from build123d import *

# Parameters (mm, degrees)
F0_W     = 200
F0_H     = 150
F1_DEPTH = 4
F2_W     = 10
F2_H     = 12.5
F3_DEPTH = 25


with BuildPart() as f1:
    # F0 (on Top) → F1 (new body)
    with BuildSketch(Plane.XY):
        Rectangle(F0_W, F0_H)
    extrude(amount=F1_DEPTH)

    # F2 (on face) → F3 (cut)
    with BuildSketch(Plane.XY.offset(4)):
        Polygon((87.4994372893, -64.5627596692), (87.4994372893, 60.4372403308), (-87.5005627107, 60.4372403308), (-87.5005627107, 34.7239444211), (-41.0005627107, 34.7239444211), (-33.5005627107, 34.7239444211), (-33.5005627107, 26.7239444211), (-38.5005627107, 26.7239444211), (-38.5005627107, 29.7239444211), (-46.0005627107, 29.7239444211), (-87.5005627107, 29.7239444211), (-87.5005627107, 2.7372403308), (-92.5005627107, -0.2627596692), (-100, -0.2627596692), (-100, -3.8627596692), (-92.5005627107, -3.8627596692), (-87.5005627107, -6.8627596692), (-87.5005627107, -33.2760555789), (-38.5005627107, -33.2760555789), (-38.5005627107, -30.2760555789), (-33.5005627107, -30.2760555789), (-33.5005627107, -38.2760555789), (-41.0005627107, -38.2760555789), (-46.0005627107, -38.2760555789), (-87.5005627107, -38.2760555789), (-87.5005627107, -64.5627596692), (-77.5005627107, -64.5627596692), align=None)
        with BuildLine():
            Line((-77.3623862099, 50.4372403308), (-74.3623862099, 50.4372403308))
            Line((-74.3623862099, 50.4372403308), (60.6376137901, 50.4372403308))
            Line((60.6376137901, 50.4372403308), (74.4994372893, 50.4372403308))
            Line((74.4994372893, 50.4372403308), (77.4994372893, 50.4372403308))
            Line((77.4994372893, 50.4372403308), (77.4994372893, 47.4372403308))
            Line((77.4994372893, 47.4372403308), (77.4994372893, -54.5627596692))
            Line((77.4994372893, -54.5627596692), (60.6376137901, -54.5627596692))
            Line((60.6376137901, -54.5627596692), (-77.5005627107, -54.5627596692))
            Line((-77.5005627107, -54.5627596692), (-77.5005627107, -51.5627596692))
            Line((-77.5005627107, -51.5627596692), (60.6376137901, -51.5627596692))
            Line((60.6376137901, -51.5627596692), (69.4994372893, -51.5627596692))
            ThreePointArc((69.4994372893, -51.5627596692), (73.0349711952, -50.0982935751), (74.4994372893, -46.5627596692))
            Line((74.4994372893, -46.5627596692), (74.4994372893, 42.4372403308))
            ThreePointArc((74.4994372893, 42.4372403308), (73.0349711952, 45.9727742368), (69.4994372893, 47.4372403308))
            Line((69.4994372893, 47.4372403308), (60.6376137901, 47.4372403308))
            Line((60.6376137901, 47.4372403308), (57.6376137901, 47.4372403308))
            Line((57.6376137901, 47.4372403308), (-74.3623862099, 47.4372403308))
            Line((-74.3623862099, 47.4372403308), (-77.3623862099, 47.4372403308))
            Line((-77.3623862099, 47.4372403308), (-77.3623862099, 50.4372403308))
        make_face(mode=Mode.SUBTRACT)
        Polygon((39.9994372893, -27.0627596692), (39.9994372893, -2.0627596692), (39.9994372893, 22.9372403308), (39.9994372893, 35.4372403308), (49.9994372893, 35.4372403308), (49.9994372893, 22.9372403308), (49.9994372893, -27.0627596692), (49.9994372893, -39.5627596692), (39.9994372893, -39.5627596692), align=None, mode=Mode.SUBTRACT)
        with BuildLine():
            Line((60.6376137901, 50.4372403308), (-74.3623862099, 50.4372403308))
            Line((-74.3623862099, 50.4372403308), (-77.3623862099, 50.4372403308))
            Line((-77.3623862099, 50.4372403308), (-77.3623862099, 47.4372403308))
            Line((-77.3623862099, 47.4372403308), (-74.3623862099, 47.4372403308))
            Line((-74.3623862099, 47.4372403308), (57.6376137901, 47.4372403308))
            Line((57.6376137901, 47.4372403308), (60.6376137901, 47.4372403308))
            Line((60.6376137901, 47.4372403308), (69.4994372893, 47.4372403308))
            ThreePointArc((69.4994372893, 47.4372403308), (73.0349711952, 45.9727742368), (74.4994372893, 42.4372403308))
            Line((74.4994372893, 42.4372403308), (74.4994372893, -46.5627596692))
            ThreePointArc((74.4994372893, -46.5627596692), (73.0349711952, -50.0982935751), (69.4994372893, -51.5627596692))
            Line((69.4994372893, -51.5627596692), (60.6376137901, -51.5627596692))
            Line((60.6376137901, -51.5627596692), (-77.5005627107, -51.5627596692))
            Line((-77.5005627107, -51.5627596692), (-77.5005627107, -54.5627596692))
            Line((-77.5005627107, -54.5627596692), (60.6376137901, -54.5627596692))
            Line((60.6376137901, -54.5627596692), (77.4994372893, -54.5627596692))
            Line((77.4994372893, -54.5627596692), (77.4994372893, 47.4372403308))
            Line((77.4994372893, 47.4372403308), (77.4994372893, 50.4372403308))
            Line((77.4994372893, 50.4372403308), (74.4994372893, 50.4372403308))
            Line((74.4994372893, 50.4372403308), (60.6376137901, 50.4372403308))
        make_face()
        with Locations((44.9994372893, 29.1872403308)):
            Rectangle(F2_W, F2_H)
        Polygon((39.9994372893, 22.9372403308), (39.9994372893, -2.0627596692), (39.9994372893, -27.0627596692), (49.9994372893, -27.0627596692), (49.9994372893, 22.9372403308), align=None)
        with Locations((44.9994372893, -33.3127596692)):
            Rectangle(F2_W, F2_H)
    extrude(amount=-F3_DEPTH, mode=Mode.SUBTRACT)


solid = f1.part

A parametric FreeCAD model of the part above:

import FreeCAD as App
import Part
import Sketcher
from FreeCAD import Vector


def add_polygon(sketch, points):
    """Adds a closed chain of lines whose ends are joined by coincident constraints."""
    first, n = sketch.GeometryCount, len(points)
    for a, b in zip(points, points[1:] + points[:1]):
        sketch.addGeometry(Part.LineSegment(App.Vector(*a, 0), App.Vector(*b, 0)), False)
    for i in range(n):
        sketch.addConstraint(Sketcher.Constraint("Coincident", first + i, 2, first + (i + 1) % n, 1))

doc = App.newDocument("Part")
body = doc.addObject("PartDesign::Body", "Body")

# Sketch on XY plane
sketch1 = body.newObject("Sketcher::SketchObject", "Sketch")
sketch1.AttachmentSupport = (doc.getObject("XY_Plane"), [""])
sketch1.MapMode = "FlatFace"
add_polygon(sketch1, [(-100, 75), (-100, -75), (100, -75), (100, 75)])  # lines 0-3
sketch1.addConstraint([
    Sketcher.Constraint("Vertical", 0),
    Sketcher.Constraint("Horizontal", 1),
    Sketcher.Constraint("Vertical", 2),
    Sketcher.Constraint("Horizontal", 3),
    Sketcher.Constraint("Symmetric", 0, 2, 2, 2, -1, 1),
    Sketcher.Constraint("DistanceX", 1, 1, 1, 2, 200.0),
    Sketcher.Constraint("DistanceY", 0, 2, 0, 1, 150.0),
])
pad1 = body.newObject("PartDesign::Pad", "Pad")
pad1.Profile = sketch1
pad1.Length = 4

# Sketch on XY plane
sketch2 = body.newObject("Sketcher::SketchObject", "Sketch001")
sketch2.AttachmentSupport = (doc.getObject("XY_Plane"), [""])
sketch2.MapMode = "FlatFace"
sketch2.AttachmentOffset = App.Placement(Vector(0, 0, 4), App.Rotation())
add_polygon(sketch2, [(87.499437, -64.56276), (87.499437, 60.43724), (-87.500563, 60.43724), (-87.500563, 34.723944), (-33.500563, 34.723944), (-33.500563, 26.723944), (-38.500563, 26.723944), (-38.500563, 29.723944), (-87.500563, 29.723944), (-87.500563, 2.73724), (-92.500563, -0.26276), (-100, -0.26276), (-100, -3.86276), (-92.500563, -3.86276), (-87.500563, -6.86276), (-87.500563, -33.276056), (-38.500563, -33.276056), (-38.500563, -30.276056), (-33.500563, -30.276056), (-33.500563, -38.276056), (-87.500563, -38.276056), (-87.500563, -64.56276)])  # lines 0-21
sketch2.addConstraint([
    Sketcher.Constraint("Vertical", 0),
    Sketcher.Constraint("Horizontal", 1),
    Sketcher.Constraint("Vertical", 2),
    Sketcher.Constraint("Horizontal", 3),
    Sketcher.Constraint("Vertical", 4),
    Sketcher.Constraint("Horizontal", 5),
    Sketcher.Constraint("Vertical", 6),
    Sketcher.Constraint("Horizontal", 7),
    Sketcher.Constraint("Vertical", 8),
    Sketcher.Constraint("Horizontal", 10),
    Sketcher.Constraint("Vertical", 11),
    Sketcher.Constraint("Horizontal", 12),
    Sketcher.Constraint("Vertical", 14),
    Sketcher.Constraint("Horizontal", 15),
    Sketcher.Constraint("Vertical", 16),
    Sketcher.Constraint("Horizontal", 17),
    Sketcher.Constraint("Vertical", 18),
    Sketcher.Constraint("Horizontal", 19),
    Sketcher.Constraint("Vertical", 20),
    Sketcher.Constraint("Horizontal", 21),
    Sketcher.Constraint("Vertical", 2, 2, 7, 2),
    Sketcher.Constraint("Vertical", 9, 2, 12, 2),
    Sketcher.Constraint("Vertical", 8, 2, 13, 2),
    Sketcher.Constraint("Vertical", 6, 2, 15, 2),
    Sketcher.Constraint("Vertical", 4, 2, 17, 2),
    Sketcher.Constraint("Vertical", 14, 2, 19, 2),
    Sketcher.Constraint("Equal", 6, 16),
    Sketcher.Constraint("Equal", 4, 18),
    Sketcher.Constraint("Equal", 9, 13),
    Sketcher.Constraint("DistanceX", 1, 2, 1, 1, 175.0),
    Sketcher.Constraint("DistanceX", 3, 1, 3, 2, 54.0),
    Sketcher.Constraint("DistanceX", 5, 2, 5, 1, 5.0),
    Sketcher.Constraint("DistanceY", 0, 1, 0, 2, 125.0),
    Sketcher.Constraint("DistanceY", 4, 2, 4, 1, 8.0),
    Sketcher.Constraint("DistanceY", 6, 1, 6, 2, 3.0),
    Sketcher.Constraint("DistanceY", 11, 2, 11, 1, 3.6),
    Sketcher.Constraint("DistanceX", 10, 2, -1, 1, 100.0),
    Sketcher.Constraint("DistanceX", 9, 2, 8, 2, 5.0),
    Sketcher.Constraint("DistanceY", 9, 2, 8, 2, 3.0),
    Sketcher.Constraint("DistanceY", 15, 2, 5, 2, 60.0),
    Sketcher.Constraint("DistanceY", 8, 2, 1, 2, 57.7),
    Sketcher.Constraint("DistanceX", 10, 2, 10, 1, 7.499437),
    Sketcher.Constraint("DistanceY", 2, 2, 2, 1, 25.713296),
    Sketcher.Constraint("DistanceY", -1, 1, 0, 2, 60.43724),
])
pocket1 = body.newObject("PartDesign::Pocket", "Pocket")
pocket1.Profile = sketch2
pocket1.Length = 25

doc.recompute()
